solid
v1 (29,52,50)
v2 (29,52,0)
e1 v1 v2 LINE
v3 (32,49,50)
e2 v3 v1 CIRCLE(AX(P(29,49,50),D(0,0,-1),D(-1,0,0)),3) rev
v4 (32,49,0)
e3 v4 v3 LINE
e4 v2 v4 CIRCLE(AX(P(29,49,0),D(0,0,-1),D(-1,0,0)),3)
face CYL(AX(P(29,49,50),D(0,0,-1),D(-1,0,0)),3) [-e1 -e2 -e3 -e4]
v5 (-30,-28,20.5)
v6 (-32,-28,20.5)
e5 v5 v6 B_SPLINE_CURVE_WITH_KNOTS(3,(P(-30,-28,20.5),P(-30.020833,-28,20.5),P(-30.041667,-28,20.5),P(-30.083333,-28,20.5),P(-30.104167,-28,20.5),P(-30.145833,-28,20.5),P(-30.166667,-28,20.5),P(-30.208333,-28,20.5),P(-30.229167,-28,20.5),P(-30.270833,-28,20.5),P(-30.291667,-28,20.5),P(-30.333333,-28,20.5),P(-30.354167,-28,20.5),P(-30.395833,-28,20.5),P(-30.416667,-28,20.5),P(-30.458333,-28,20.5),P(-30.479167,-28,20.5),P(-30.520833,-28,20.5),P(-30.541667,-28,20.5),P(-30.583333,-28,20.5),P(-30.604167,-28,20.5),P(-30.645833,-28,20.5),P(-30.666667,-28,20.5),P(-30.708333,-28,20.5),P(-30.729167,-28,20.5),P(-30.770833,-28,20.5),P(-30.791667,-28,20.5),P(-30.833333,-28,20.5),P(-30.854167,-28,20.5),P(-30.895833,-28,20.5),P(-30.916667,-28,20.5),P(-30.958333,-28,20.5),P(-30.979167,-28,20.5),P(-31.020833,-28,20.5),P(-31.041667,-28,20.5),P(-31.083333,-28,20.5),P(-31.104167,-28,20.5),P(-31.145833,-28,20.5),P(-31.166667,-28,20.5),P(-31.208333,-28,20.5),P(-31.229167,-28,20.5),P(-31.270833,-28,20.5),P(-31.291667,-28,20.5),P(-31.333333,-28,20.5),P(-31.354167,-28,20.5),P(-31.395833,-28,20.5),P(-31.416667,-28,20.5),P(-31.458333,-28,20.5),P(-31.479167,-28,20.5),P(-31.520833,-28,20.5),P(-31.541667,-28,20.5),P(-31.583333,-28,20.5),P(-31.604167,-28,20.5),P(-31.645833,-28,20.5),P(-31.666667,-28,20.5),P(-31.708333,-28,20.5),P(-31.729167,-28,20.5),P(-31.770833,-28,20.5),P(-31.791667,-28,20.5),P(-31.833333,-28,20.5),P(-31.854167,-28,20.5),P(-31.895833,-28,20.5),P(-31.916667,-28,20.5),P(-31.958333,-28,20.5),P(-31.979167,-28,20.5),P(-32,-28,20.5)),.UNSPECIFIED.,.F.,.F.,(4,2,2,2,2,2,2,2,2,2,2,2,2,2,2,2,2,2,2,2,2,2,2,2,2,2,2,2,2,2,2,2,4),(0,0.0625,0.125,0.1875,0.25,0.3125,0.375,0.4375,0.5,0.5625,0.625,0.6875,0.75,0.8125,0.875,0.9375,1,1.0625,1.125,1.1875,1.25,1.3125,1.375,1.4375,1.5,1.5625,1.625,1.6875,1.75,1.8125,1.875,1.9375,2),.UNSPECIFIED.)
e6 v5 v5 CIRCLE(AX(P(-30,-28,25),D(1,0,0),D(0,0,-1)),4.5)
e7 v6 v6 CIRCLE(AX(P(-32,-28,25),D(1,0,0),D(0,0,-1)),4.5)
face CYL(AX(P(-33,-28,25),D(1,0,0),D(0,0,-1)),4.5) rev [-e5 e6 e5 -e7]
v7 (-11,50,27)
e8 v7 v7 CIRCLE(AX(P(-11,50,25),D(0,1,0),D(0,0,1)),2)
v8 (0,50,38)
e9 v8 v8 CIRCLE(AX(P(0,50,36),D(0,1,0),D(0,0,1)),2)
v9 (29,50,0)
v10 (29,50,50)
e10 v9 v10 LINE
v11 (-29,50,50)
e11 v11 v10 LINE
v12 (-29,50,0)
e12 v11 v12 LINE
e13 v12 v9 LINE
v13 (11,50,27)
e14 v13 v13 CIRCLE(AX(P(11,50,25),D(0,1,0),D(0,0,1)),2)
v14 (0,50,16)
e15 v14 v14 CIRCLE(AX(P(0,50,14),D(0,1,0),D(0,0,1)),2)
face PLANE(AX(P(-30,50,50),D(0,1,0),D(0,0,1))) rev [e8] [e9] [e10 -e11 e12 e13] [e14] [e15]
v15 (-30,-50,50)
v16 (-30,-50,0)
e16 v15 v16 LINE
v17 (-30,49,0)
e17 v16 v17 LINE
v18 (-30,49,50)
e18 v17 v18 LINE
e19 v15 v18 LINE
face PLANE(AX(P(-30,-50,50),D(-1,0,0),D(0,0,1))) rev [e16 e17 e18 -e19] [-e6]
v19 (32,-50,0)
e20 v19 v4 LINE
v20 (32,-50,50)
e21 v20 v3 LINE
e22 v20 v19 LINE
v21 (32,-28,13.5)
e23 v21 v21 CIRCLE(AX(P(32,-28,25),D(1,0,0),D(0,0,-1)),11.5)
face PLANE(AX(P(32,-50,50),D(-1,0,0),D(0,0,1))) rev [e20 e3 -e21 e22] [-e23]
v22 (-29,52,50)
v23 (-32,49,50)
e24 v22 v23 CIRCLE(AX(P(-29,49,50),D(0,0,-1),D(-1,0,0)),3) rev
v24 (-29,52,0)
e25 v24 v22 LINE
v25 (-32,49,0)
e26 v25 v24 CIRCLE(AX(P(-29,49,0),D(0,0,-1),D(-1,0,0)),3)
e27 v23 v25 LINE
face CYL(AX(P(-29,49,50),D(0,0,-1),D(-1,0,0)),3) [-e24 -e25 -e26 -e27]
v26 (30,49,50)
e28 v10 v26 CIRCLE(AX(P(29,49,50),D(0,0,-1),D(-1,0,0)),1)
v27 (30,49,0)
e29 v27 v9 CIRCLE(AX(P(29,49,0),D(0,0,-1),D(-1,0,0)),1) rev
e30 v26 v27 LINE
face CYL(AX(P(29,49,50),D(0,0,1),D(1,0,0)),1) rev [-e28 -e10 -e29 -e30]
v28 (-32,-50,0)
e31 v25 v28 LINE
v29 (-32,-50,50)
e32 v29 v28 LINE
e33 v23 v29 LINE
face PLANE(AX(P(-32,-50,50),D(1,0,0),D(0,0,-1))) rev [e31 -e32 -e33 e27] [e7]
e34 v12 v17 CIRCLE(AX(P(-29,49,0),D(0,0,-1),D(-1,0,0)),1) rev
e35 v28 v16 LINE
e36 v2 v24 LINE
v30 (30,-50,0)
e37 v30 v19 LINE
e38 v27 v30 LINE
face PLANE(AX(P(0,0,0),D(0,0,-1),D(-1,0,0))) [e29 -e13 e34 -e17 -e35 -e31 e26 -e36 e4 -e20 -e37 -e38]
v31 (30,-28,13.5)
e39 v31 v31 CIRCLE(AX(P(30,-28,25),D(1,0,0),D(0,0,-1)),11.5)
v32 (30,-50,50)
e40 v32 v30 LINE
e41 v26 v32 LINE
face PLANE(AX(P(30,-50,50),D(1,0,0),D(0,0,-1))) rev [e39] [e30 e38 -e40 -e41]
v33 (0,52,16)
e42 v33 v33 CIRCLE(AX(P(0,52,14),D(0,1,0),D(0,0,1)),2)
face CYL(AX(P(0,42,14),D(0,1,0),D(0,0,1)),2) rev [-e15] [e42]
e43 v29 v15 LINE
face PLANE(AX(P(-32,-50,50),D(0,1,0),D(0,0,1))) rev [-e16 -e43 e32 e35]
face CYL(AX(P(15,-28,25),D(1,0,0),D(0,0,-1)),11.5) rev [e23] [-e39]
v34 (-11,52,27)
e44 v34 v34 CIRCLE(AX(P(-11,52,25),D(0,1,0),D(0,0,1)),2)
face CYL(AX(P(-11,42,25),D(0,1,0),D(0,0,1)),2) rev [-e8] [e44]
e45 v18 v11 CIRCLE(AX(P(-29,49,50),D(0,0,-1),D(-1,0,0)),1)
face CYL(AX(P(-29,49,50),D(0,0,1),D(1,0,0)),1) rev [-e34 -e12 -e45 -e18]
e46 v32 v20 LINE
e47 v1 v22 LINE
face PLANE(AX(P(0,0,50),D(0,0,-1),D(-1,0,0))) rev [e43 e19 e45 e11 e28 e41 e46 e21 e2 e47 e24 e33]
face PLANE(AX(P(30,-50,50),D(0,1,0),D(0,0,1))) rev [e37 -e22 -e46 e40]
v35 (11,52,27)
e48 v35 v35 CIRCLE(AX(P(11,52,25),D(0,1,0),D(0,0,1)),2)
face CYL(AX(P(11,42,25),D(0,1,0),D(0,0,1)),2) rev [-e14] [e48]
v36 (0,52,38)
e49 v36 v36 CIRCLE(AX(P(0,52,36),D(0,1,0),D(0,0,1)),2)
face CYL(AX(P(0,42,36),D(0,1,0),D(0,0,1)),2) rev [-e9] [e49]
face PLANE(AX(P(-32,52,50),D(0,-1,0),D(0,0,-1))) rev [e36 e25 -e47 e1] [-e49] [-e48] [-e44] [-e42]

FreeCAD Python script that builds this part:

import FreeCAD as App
import Part
import Sketcher
from FreeCAD import Vector
Q = App.Units.Quantity


def edges_at(feature, points):
    """Names of the edges that pass closest to the given points."""
    edges = feature.Shape.Edges
    near = lambda p: min(range(len(edges)), key=lambda i: edges[i].distToShape(Part.Vertex(*p))[0])
    return sorted({f"Edge{near(p) + 1}" for p in points})


def add_polygon(sketch, points):
    """Adds a closed chain of lines whose ends are joined by coincident constraints."""
    first, n = sketch.GeometryCount, len(points)
    for a, b in zip(points, points[1:] + points[:1]):
        sketch.addGeometry(Part.LineSegment(App.Vector(*a, 0), App.Vector(*b, 0)), False)
    for i in range(n):
        sketch.addConstraint(Sketcher.Constraint("Coincident", first + i, 2, first + (i + 1) % n, 1))

doc = App.newDocument("Part")
body = doc.addObject("PartDesign::Body", "Body")

# Sketch on XY plane
sketch1 = body.newObject("Sketcher::SketchObject", "Sketch")
sketch1.AttachmentSupport = (doc.getObject("XY_Plane"), [""])
sketch1.MapMode = "FlatFace"
add_polygon(sketch1, [(-32, 52), (-32, -50), (-30, -50), (-30, 50), (30, 50), (30, -50), (32, -50), (32, 52)])  # lines 0-7
sketch1.addConstraint(Sketcher.Constraint("Vertical", 0))
sketch1.addConstraint(Sketcher.Constraint("Horizontal", 1))
sketch1.addConstraint(Sketcher.Constraint("Vertical", 2))
sketch1.addConstraint(Sketcher.Constraint("Horizontal", 3))
sketch1.addConstraint(Sketcher.Constraint("Vertical", 4))
sketch1.addConstraint(Sketcher.Constraint("Horizontal", 5))
sketch1.addConstraint(Sketcher.Constraint("Vertical", 6))
sketch1.addConstraint(Sketcher.Constraint("Horizontal", 7))
sketch1.addConstraint(Sketcher.Constraint("Symmetric", 1, 2, 3, 2, -1, 1))
sketch1.addConstraint(Sketcher.Constraint("Symmetric", 0, 2, 5, 2, -2))
sketch1.addConstraint(Sketcher.Constraint("DistanceX", 1, 1, 1, 2, Q("2 mm")))
sketch1.addConstraint(Sketcher.Constraint("DistanceX", 3, 1, 3, 2, Q("60 mm")))
sketch1.addConstraint(Sketcher.Constraint("DistanceY", 0, 2, 0, 1, Q("102 mm")))
sketch1.addConstraint(Sketcher.Constraint("DistanceY", 2, 1, 2, 2, Q("100 mm")))
pad1 = body.newObject("PartDesign::Pad", "Pad")
pad1.Profile = sketch1
pad1.Length = 50
doc.recompute()

fillet = body.newObject("PartDesign::Fillet", "Fillet")
fillet.Base = (pad1, edges_at(pad1, [(30, 50, 25), (-30, 50, 25)]))
fillet.Radius = 1
doc.recompute()

fillet2 = body.newObject("PartDesign::Fillet", "Fillet001")
fillet2.Base = (fillet, edges_at(fillet, [(-32, 52, 25), (32, 52, 25)]))
fillet2.Radius = 3

# Sketch on XZ plane
sketch2 = body.newObject("Sketcher::SketchObject", "Sketch001")
sketch2.AttachmentSupport = (doc.getObject("XZ_Plane"), [""])
sketch2.MapMode = "FlatFace"
sketch2.AttachmentOffset = App.Placement(Vector(0, 0, -52), App.Rotation())
sketch2.addGeometry(Part.Circle(Vector(0, 14, 0), Vector(0, 0, 1), 2), False)
sketch2.addGeometry(Part.Circle(Vector(11, 25, 0), Vector(0, 0, 1), 2), False)
sketch2.addGeometry(Part.Circle(Vector(0, 36, 0), Vector(0, 0, 1), 2), False)
sketch2.addGeometry(Part.Circle(Vector(-11, 25, 0), Vector(0, 0, 1), 2), False)
sketch2.addConstraint(Sketcher.Constraint("Equal", 0, 1))
sketch2.addConstraint(Sketcher.Constraint("Equal", 1, 2))
sketch2.addConstraint(Sketcher.Constraint("Equal", 2, 3))
sketch2.addConstraint(Sketcher.Constraint("Symmetric", 1, 3, 3, 3, -2))
sketch2.addConstraint(Sketcher.Constraint("PointOnObject", 0, 3, -2))
sketch2.addConstraint(Sketcher.Constraint("PointOnObject", 2, 3, -2))
sketch2.addConstraint(Sketcher.Constraint("Diameter", 0, Q("4 mm")))
sketch2.addConstraint(Sketcher.Constraint("DistanceY", -1, 1, 0, 3, Q("14 mm")))
sketch2.addConstraint(Sketcher.Constraint("DistanceX", -1, 1, 1, 3, Q("11 mm")))
sketch2.addConstraint(Sketcher.Constraint("DistanceY", -1, 1, 1, 3, Q("25 mm")))
sketch2.addConstraint(Sketcher.Constraint("DistanceY", -1, 1, 2, 3, Q("36 mm")))
pocket1 = body.newObject("PartDesign::Pocket", "Pocket")
pocket1.Profile = sketch2
pocket1.Length = 10
pocket1.Reversed = True

# Sketch on YZ plane
sketch3 = body.newObject("Sketcher::SketchObject", "Sketch002")
sketch3.AttachmentSupport = (doc.getObject("YZ_Plane"), [""])
sketch3.MapMode = "FlatFace"
sketch3.AttachmentOffset = App.Placement(Vector(0, 0, 32), App.Rotation())
sketch3.addGeometry(Part.Circle(Vector(-28, 25, 0), Vector(0, 0, 1), 12), False)
sketch3.addConstraint(Sketcher.Constraint("Diameter", 0, Q("23 mm")))
sketch3.addConstraint(Sketcher.Constraint("DistanceX", 0, 3, -1, 1, Q("28 mm")))
sketch3.addConstraint(Sketcher.Constraint("DistanceY", -1, 1, 0, 3, Q("25 mm")))
pocket2 = body.newObject("PartDesign::Pocket", "Pocket001")
pocket2.Profile = sketch3
pocket2.Length = 17

# Sketch on YZ plane
sketch4 = body.newObject("Sketcher::SketchObject", "Sketch003")
sketch4.AttachmentSupport = (doc.getObject("YZ_Plane"), [""])
sketch4.MapMode = "FlatFace"
sketch4.AttachmentOffset = App.Placement(Vector(0, 0, -30), App.Rotation())
sketch4.addGeometry(Part.Circle(Vector(-28, 25, 0), Vector(0, 0, 1), 4.5), False)
sketch4.addConstraint(Sketcher.Constraint("Diameter", 0, Q("9 mm")))
sketch4.addConstraint(Sketcher.Constraint("DistanceX", 0, 3, -1, 1, Q("28 mm")))
sketch4.addConstraint(Sketcher.Constraint("DistanceY", -1, 1, 0, 3, Q("25 mm")))
pocket3 = body.newObject("PartDesign::Pocket", "Pocket002")
pocket3.Profile = sketch4
pocket3.Length = 3

doc.recompute()
